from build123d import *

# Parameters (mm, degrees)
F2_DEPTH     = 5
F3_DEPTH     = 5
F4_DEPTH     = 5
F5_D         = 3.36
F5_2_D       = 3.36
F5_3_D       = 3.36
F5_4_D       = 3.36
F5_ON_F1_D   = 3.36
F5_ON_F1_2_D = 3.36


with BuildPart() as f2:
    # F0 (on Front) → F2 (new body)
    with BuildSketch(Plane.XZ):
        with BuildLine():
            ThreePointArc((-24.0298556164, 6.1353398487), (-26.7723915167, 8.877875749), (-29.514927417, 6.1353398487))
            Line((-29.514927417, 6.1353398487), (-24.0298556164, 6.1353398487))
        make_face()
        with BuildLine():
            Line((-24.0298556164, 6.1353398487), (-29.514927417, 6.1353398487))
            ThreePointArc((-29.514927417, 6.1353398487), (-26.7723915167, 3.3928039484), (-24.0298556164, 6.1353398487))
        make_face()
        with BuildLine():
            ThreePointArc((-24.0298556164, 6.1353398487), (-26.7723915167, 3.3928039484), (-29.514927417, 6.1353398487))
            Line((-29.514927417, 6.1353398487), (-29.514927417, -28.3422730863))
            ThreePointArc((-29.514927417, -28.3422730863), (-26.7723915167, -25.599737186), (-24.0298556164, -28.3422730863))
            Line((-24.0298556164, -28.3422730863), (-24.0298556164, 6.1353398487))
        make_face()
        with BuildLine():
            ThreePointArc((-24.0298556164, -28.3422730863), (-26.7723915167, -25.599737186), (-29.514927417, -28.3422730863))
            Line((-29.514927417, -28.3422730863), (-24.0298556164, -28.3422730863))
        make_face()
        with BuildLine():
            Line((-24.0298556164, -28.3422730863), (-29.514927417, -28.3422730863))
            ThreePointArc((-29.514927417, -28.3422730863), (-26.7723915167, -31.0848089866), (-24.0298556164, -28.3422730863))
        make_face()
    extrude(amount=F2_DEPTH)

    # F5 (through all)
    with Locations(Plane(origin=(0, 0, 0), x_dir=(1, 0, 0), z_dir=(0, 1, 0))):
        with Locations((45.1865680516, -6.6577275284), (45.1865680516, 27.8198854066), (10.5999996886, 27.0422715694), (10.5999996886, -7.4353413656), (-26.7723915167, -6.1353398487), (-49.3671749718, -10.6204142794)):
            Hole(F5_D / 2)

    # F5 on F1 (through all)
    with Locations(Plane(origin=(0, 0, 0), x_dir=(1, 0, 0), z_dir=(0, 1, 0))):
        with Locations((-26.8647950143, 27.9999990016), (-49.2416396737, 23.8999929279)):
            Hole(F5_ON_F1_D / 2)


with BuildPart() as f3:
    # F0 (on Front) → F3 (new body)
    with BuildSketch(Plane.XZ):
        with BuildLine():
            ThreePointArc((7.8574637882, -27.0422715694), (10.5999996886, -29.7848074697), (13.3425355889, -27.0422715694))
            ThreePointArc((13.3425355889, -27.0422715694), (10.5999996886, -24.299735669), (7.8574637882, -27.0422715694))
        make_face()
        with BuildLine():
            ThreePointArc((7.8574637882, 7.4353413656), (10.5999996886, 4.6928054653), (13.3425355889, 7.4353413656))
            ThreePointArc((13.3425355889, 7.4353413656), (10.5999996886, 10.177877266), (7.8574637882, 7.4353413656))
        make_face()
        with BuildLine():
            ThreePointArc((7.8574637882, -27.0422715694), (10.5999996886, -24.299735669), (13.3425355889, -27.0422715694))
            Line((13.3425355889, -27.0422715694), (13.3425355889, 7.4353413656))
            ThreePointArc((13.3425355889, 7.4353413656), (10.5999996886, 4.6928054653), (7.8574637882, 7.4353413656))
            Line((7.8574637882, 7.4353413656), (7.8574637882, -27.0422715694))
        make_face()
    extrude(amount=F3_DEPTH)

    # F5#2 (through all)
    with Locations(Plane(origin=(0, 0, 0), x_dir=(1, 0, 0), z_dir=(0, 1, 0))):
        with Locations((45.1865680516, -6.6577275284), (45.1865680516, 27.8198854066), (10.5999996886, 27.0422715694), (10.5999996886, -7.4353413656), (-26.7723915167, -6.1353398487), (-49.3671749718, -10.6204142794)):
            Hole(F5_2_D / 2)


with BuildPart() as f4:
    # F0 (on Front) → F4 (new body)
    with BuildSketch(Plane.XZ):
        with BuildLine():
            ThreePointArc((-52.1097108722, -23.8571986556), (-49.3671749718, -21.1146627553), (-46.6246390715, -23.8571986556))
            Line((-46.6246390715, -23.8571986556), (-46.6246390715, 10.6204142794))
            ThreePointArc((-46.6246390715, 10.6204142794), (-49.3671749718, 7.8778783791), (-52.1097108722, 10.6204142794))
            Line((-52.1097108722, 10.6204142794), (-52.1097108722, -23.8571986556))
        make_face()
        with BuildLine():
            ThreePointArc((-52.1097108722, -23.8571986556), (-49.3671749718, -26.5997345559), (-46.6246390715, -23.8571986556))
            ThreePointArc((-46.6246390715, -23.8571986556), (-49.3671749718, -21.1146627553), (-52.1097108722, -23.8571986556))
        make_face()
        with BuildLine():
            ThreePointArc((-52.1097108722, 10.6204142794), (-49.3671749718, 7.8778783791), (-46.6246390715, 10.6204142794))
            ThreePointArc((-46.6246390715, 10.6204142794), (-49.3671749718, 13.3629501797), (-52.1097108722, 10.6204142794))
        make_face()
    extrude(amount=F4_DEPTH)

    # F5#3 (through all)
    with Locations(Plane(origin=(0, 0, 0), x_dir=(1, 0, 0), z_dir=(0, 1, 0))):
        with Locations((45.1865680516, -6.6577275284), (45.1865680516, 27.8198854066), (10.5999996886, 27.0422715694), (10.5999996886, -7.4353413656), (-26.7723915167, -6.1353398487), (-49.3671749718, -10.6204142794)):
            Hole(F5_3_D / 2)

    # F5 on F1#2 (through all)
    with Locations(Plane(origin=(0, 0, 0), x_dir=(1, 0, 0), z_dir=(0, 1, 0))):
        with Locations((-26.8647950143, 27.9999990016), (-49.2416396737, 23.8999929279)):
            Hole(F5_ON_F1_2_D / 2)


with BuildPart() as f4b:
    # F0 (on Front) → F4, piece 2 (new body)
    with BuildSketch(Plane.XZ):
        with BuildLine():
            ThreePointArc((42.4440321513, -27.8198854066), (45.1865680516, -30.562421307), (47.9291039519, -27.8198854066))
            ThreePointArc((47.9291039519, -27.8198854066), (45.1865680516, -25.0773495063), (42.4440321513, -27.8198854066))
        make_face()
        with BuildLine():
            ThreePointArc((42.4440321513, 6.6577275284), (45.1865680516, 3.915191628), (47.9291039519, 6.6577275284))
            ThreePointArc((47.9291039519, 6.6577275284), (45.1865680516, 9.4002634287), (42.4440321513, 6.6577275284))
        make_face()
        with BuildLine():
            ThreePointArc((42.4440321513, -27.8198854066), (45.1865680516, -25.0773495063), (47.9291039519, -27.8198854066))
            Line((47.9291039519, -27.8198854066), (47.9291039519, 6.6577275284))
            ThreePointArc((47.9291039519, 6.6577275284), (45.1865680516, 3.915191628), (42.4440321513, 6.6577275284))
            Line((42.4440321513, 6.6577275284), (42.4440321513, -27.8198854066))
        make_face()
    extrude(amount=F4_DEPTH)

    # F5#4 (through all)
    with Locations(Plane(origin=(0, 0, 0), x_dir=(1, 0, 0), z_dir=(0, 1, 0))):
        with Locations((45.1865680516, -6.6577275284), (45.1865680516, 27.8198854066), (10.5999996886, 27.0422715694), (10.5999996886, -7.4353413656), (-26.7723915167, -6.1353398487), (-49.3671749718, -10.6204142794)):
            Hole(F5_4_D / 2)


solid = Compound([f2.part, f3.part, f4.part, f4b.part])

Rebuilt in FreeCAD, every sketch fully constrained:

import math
import FreeCAD as App
import Part
import Sketcher
Q = App.Units.Quantity

doc = App.newDocument("Part")
params = doc.addObject("Spreadsheet::Sheet", "Params")
for row, (alias, value) in enumerate([
    ("pad1_length", "5 mm"),
    ("sketch2_diameter", "3.36 mm"),
    ("hole_diameter", "3.36 mm"),
    ("sketch3_diameter", "3.36 mm"),
    ("hole2_diameter", "3.36 mm"),
    ("pad2_length", "5 mm"),
    ("sketch5_diameter", "3.36 mm"),
    ("hole3_diameter", "3.36 mm"),
    ("pad3_length", "5 mm"),
    ("sketch7_diameter", "3.36 mm"),
    ("hole4_diameter", "3.36 mm"),
    ("sketch8_diameter", "3.36 mm"),
    ("hole5_diameter", "3.36 mm"),
    ("pad4_length", "5 mm"),
    ("sketch10_diameter", "3.36 mm"),
    ("hole6_diameter", "3.36 mm"),
], start=1):
    params.set(f"A{row}", alias)
    params.set(f"B{row}", "=" + value)
    params.setAlias(f"B{row}", alias)

body = doc.addObject("PartDesign::Body", "Body")

# Sketch on XZ plane
sketch1 = body.newObject("Sketcher::SketchObject", "Sketch")
sketch1.AttachmentSupport = (doc.getObject("XZ_Plane"), [""])
sketch1.MapMode = "FlatFace"
sketch1.addGeometry([
    Part.ArcOfCircle(Part.Circle(App.Vector(-26.772392, 6.13534, 0), App.Vector(0, 0, 1), 2.742536), math.radians(0), math.radians(180)),
    Part.LineSegment(App.Vector(-29.514927, 6.13534, 0), App.Vector(-29.514927, -28.342273, 0)),
    Part.ArcOfCircle(Part.Circle(App.Vector(-26.772392, -28.342273, 0), App.Vector(0, 0, 1), 2.742536), math.radians(180), math.radians(360)),
    Part.LineSegment(App.Vector(-24.029856, -28.342273, 0), App.Vector(-24.029856, 6.13534, 0)),
], False)
sketch1.addConstraint([
    Sketcher.Constraint("Tangent", 0, 2, 1, 1),
    Sketcher.Constraint("Tangent", 1, 2, 2, 1),
    Sketcher.Constraint("Tangent", 2, 2, 3, 1),
    Sketcher.Constraint("Tangent", 3, 2, 0, 1),
    Sketcher.Constraint("Vertical", 1),
    Sketcher.Constraint("Vertical", 3),
    Sketcher.Constraint("Radius", 0, Q("2.742536 mm")),
    Sketcher.Constraint("DistanceY", 1, 2, 1, 1, Q("34.477613 mm")),
    Sketcher.Constraint("DistanceX", 0, 3, -1, 1, Q("26.772392 mm")),
    Sketcher.Constraint("DistanceY", -1, 1, 0, 3, Q("6.13534 mm")),
])
pad1 = body.newObject("PartDesign::Pad", "Pad")
pad1.Profile = sketch1
pad1.setExpression("Length", "Params.pad1_length")

# Sketch on XZ plane
sketch2 = body.newObject("Sketcher::SketchObject", "Sketch001")
sketch2.AttachmentSupport = (doc.getObject("XZ_Plane"), [""])
sketch2.MapMode = "FlatFace"
sketch2.addGeometry([
    Part.Circle(App.Vector(45.186568, 6.657728, 0), App.Vector(0, 0, 1), 1.68),  # 0
    Part.Circle(App.Vector(45.186568, -27.819885, 0), App.Vector(0, 0, 1), 1.68),  # 1
    Part.Circle(App.Vector(10.6, -27.042272, 0), App.Vector(0, 0, 1), 1.68),  # 2
    Part.Circle(App.Vector(10.6, 7.435341, 0), App.Vector(0, 0, 1), 1.68),  # 3
    Part.Circle(App.Vector(-26.772392, 6.13534, 0), App.Vector(0, 0, 1), 1.68),  # 4
    Part.Circle(App.Vector(-49.367175, 10.620414, 0), App.Vector(0, 0, 1), 1.68),  # 5
], False)
sketch2.addConstraint([
    Sketcher.Constraint("Equal", 0, 1),
    Sketcher.Constraint("Equal", 1, 2),
    Sketcher.Constraint("Equal", 2, 3),
    Sketcher.Constraint("Equal", 3, 4),
    Sketcher.Constraint("Equal", 4, 5),
    Sketcher.Constraint("Vertical", 0, 3, 1, 3),
    Sketcher.Constraint("Vertical", 2, 3, 3, 3),
    Sketcher.Constraint("Diameter", 0, Q("3.36 mm")),
    Sketcher.Constraint("DistanceX", -1, 1, 2, 3, Q("10.6 mm")),
    Sketcher.Constraint("DistanceY", 2, 3, 0, 3, Q("33.699999 mm")),
    Sketcher.Constraint("DistanceY", 4, 3, 3, 3, Q("1.300002 mm")),
    Sketcher.Constraint("DistanceY", 1, 3, 5, 3, Q("38.4403 mm")),
    Sketcher.Constraint("DistanceX", -1, 1, 0, 3, Q("45.186568 mm")),
    Sketcher.Constraint("DistanceY", 2, 3, -1, 1, Q("27.042272 mm")),
    Sketcher.Constraint("DistanceY", -1, 1, 3, 3, Q("7.435341 mm")),
    Sketcher.Constraint("DistanceX", 4, 3, -1, 1, Q("26.772392 mm")),
    Sketcher.Constraint("DistanceY", 1, 3, -1, 1, Q("27.819885 mm")),
    Sketcher.Constraint("DistanceX", 5, 3, -1, 1, Q("49.367175 mm")),
])
sketch2.setExpression("Constraints[7]", "Params.sketch2_diameter")
doc.recompute()
hole = body.newObject("PartDesign::Hole", "Hole")
hole.Profile = sketch2
hole.ThreadType = "None"
hole.setExpression("Diameter", "Params.hole_diameter")
hole.DepthType = "ThroughAll"
hole.Reversed = True

# Sketch on XZ plane
sketch3 = body.newObject("Sketcher::SketchObject", "Sketch002")
sketch3.AttachmentSupport = (doc.getObject("XZ_Plane"), [""])
sketch3.MapMode = "FlatFace"
sketch3.addGeometry([
    Part.Circle(App.Vector(-26.864795, -27.999999, 0), App.Vector(0, 0, 1), 1.68),
    Part.Circle(App.Vector(-49.24164, -23.899993, 0), App.Vector(0, 0, 1), 1.68),
], False)
sketch3.addConstraint([
    Sketcher.Constraint("Equal", 0, 1),
    Sketcher.Constraint("Diameter", 0, Q("3.36 mm")),
    Sketcher.Constraint("DistanceY", 0, 3, -1, 1, Q("27.999999 mm")),
    Sketcher.Constraint("DistanceX", 1, 3, -1, 1, Q("49.24164 mm")),
    Sketcher.Constraint("DistanceX", 0, 3, -1, 1, Q("26.864795 mm")),
    Sketcher.Constraint("DistanceY", 1, 3, -1, 1, Q("23.899993 mm")),
])
sketch3.setExpression("Constraints[1]", "Params.sketch3_diameter")
doc.recompute()
hole2 = body.newObject("PartDesign::Hole", "Hole001")
hole2.Profile = sketch3
hole2.ThreadType = "None"
hole2.setExpression("Diameter", "Params.hole2_diameter")
hole2.DepthType = "ThroughAll"
hole2.Reversed = True
body2 = doc.addObject("PartDesign::Body", "Body001")

# Sketch on XZ plane
sketch4 = body2.newObject("Sketcher::SketchObject", "Sketch003")
sketch4.AttachmentSupport = (doc.getObject("XZ_Plane001"), [""])
sketch4.MapMode = "FlatFace"
sketch4.addGeometry([
    Part.ArcOfCircle(Part.Circle(App.Vector(10.6, -27.042272, 0), App.Vector(0, 0, 1), 2.742536), math.radians(180), math.radians(360)),
    Part.LineSegment(App.Vector(13.342536, -27.042272, 0), App.Vector(13.342536, 7.435341, 0)),
    Part.ArcOfCircle(Part.Circle(App.Vector(10.6, 7.435341, 0), App.Vector(0, 0, 1), 2.742536), math.radians(0), math.radians(180)),
    Part.LineSegment(App.Vector(7.857464, 7.435341, 0), App.Vector(7.857464, -27.042272, 0)),
], False)
sketch4.addConstraint([
    Sketcher.Constraint("Tangent", 0, 2, 1, 1),
    Sketcher.Constraint("Tangent", 1, 2, 2, 1),
    Sketcher.Constraint("Tangent", 2, 2, 3, 1),
    Sketcher.Constraint("Tangent", 3, 2, 0, 1),
    Sketcher.Constraint("Vertical", 1),
    Sketcher.Constraint("Vertical", 3),
    Sketcher.Constraint("DistanceX", -1, 1, 0, 3, Q("10.6 mm")),
    Sketcher.Constraint("Radius", 0, Q("2.742536 mm")),
    Sketcher.Constraint("DistanceY", 1, 1, 1, 2, Q("34.477613 mm")),
    Sketcher.Constraint("DistanceY", 0, 3, -1, 1, Q("27.042272 mm")),
])
pad2 = body2.newObject("PartDesign::Pad", "Pad001")
pad2.Profile = sketch4
pad2.setExpression("Length", "Params.pad2_length")

# Sketch on XZ plane
sketch5 = body2.newObject("Sketcher::SketchObject", "Sketch004")
sketch5.AttachmentSupport = (doc.getObject("XZ_Plane001"), [""])
sketch5.MapMode = "FlatFace"
sketch5.addGeometry([
    Part.Circle(App.Vector(45.186568, 6.657728, 0), App.Vector(0, 0, 1), 1.68),  # 0
    Part.Circle(App.Vector(45.186568, -27.819885, 0), App.Vector(0, 0, 1), 1.68),  # 1
    Part.Circle(App.Vector(10.6, -27.042272, 0), App.Vector(0, 0, 1), 1.68),  # 2
    Part.Circle(App.Vector(10.6, 7.435341, 0), App.Vector(0, 0, 1), 1.68),  # 3
    Part.Circle(App.Vector(-26.772392, 6.13534, 0), App.Vector(0, 0, 1), 1.68),  # 4
    Part.Circle(App.Vector(-49.367175, 10.620414, 0), App.Vector(0, 0, 1), 1.68),  # 5
], False)
sketch5.addConstraint([
    Sketcher.Constraint("Equal", 0, 1),
    Sketcher.Constraint("Equal", 1, 2),
    Sketcher.Constraint("Equal", 2, 3),
    Sketcher.Constraint("Equal", 3, 4),
    Sketcher.Constraint("Equal", 4, 5),
    Sketcher.Constraint("Vertical", 0, 3, 1, 3),
    Sketcher.Constraint("Vertical", 2, 3, 3, 3),
    Sketcher.Constraint("Diameter", 0, Q("3.36 mm")),
    Sketcher.Constraint("DistanceX", -1, 1, 2, 3, Q("10.6 mm")),
    Sketcher.Constraint("DistanceY", 2, 3, 0, 3, Q("33.699999 mm")),
    Sketcher.Constraint("DistanceY", 4, 3, 3, 3, Q("1.300002 mm")),
    Sketcher.Constraint("DistanceY", 1, 3, 5, 3, Q("38.4403 mm")),
    Sketcher.Constraint("DistanceX", -1, 1, 0, 3, Q("45.186568 mm")),
    Sketcher.Constraint("DistanceY", 2, 3, -1, 1, Q("27.042272 mm")),
    Sketcher.Constraint("DistanceY", -1, 1, 3, 3, Q("7.435341 mm")),
    Sketcher.Constraint("DistanceX", 4, 3, -1, 1, Q("26.772392 mm")),
    Sketcher.Constraint("DistanceY", 1, 3, -1, 1, Q("27.819885 mm")),
    Sketcher.Constraint("DistanceX", 5, 3, -1, 1, Q("49.367175 mm")),
])
sketch5.setExpression("Constraints[7]", "Params.sketch5_diameter")
doc.recompute()
hole3 = body2.newObject("PartDesign::Hole", "Hole002")
hole3.Profile = sketch5
hole3.ThreadType = "None"
hole3.setExpression("Diameter", "Params.hole3_diameter")
hole3.DepthType = "ThroughAll"
hole3.Reversed = True
body3 = doc.addObject("PartDesign::Body", "Body002")

# Sketch on XZ plane
sketch6 = body3.newObject("Sketcher::SketchObject", "Sketch005")
sketch6.AttachmentSupport = (doc.getObject("XZ_Plane002"), [""])
sketch6.MapMode = "FlatFace"
sketch6.addGeometry([
    Part.LineSegment(App.Vector(-46.624639, -23.857199, 0), App.Vector(-46.624639, 10.620414, 0)),
    Part.ArcOfCircle(Part.Circle(App.Vector(-49.367175, 10.620414, 0), App.Vector(0, 0, 1), 2.742536), math.radians(0), math.radians(180)),
    Part.LineSegment(App.Vector(-52.109711, 10.620414, 0), App.Vector(-52.109711, -23.857199, 0)),
    Part.ArcOfCircle(Part.Circle(App.Vector(-49.367175, -23.857199, 0), App.Vector(0, 0, 1), 2.742536), math.radians(180), math.radians(360)),
], False)
sketch6.addConstraint([
    Sketcher.Constraint("Tangent", 0, 2, 1, 1),
    Sketcher.Constraint("Tangent", 1, 2, 2, 1),
    Sketcher.Constraint("Tangent", 2, 2, 3, 1),
    Sketcher.Constraint("Tangent", 3, 2, 0, 1),
    Sketcher.Constraint("Vertical", 0),
    Sketcher.Constraint("Vertical", 2),
    Sketcher.Constraint("Radius", 1, Q("2.742536 mm")),
    Sketcher.Constraint("DistanceY", 3, 3, -1, 1, Q("23.857199 mm")),
    Sketcher.Constraint("DistanceY", 0, 1, 0, 2, Q("34.477613 mm")),
    Sketcher.Constraint("DistanceX", 0, 2, -1, 1, Q("46.624639 mm")),
])
pad3 = body3.newObject("PartDesign::Pad", "Pad002")
pad3.Profile = sketch6
pad3.setExpression("Length", "Params.pad3_length")

# Sketch on XZ plane
sketch7 = body3.newObject("Sketcher::SketchObject", "Sketch006")
sketch7.AttachmentSupport = (doc.getObject("XZ_Plane002"), [""])
sketch7.MapMode = "FlatFace"
sketch7.addGeometry([
    Part.Circle(App.Vector(45.186568, 6.657728, 0), App.Vector(0, 0, 1), 1.68),  # 0
    Part.Circle(App.Vector(45.186568, -27.819885, 0), App.Vector(0, 0, 1), 1.68),  # 1
    Part.Circle(App.Vector(10.6, -27.042272, 0), App.Vector(0, 0, 1), 1.68),  # 2
    Part.Circle(App.Vector(10.6, 7.435341, 0), App.Vector(0, 0, 1), 1.68),  # 3
    Part.Circle(App.Vector(-26.772392, 6.13534, 0), App.Vector(0, 0, 1), 1.68),  # 4
    Part.Circle(App.Vector(-49.367175, 10.620414, 0), App.Vector(0, 0, 1), 1.68),  # 5
], False)
sketch7.addConstraint([
    Sketcher.Constraint("Equal", 0, 1),
    Sketcher.Constraint("Equal", 1, 2),
    Sketcher.Constraint("Equal", 2, 3),
    Sketcher.Constraint("Equal", 3, 4),
    Sketcher.Constraint("Equal", 4, 5),
    Sketcher.Constraint("Vertical", 0, 3, 1, 3),
    Sketcher.Constraint("Vertical", 2, 3, 3, 3),
    Sketcher.Constraint("Diameter", 0, Q("3.36 mm")),
    Sketcher.Constraint("DistanceX", -1, 1, 2, 3, Q("10.6 mm")),
    Sketcher.Constraint("DistanceY", 2, 3, 0, 3, Q("33.699999 mm")),
    Sketcher.Constraint("DistanceY", 4, 3, 3, 3, Q("1.300002 mm")),
    Sketcher.Constraint("DistanceY", 1, 3, 5, 3, Q("38.4403 mm")),
    Sketcher.Constraint("DistanceX", -1, 1, 0, 3, Q("45.186568 mm")),
    Sketcher.Constraint("DistanceY", 2, 3, -1, 1, Q("27.042272 mm")),
    Sketcher.Constraint("DistanceY", -1, 1, 3, 3, Q("7.435341 mm")),
    Sketcher.Constraint("DistanceX", 4, 3, -1, 1, Q("26.772392 mm")),
    Sketcher.Constraint("DistanceY", 1, 3, -1, 1, Q("27.819885 mm")),
    Sketcher.Constraint("DistanceX", 5, 3, -1, 1, Q("49.367175 mm")),
])
sketch7.setExpression("Constraints[7]", "Params.sketch7_diameter")
doc.recompute()
hole4 = body3.newObject("PartDesign::Hole", "Hole003")
hole4.Profile = sketch7
hole4.ThreadType = "None"
hole4.setExpression("Diameter", "Params.hole4_diameter")
hole4.DepthType = "ThroughAll"
hole4.Reversed = True

# Sketch on XZ plane
sketch8 = body3.newObject("Sketcher::SketchObject", "Sketch007")
sketch8.AttachmentSupport = (doc.getObject("XZ_Plane002"), [""])
sketch8.MapMode = "FlatFace"
sketch8.addGeometry([
    Part.Circle(App.Vector(-26.864795, -27.999999, 0), App.Vector(0, 0, 1), 1.68),
    Part.Circle(App.Vector(-49.24164, -23.899993, 0), App.Vector(0, 0, 1), 1.68),
], False)
sketch8.addConstraint([
    Sketcher.Constraint("Equal", 0, 1),
    Sketcher.Constraint("Diameter", 0, Q("3.36 mm")),
    Sketcher.Constraint("DistanceY", 0, 3, -1, 1, Q("27.999999 mm")),
    Sketcher.Constraint("DistanceX", 1, 3, -1, 1, Q("49.24164 mm")),
    Sketcher.Constraint("DistanceX", 0, 3, -1, 1, Q("26.864795 mm")),
    Sketcher.Constraint("DistanceY", 1, 3, -1, 1, Q("23.899993 mm")),
])
sketch8.setExpression("Constraints[1]", "Params.sketch8_diameter")
doc.recompute()
hole5 = body3.newObject("PartDesign::Hole", "Hole004")
hole5.Profile = sketch8
hole5.ThreadType = "None"
hole5.setExpression("Diameter", "Params.hole5_diameter")
hole5.DepthType = "ThroughAll"
hole5.Reversed = True
body4 = doc.addObject("PartDesign::Body", "Body003")

# Sketch on XZ plane
sketch9 = body4.newObject("Sketcher::SketchObject", "Sketch008")
sketch9.AttachmentSupport = (doc.getObject("XZ_Plane003"), [""])
sketch9.MapMode = "FlatFace"
sketch9.addGeometry([
    Part.ArcOfCircle(Part.Circle(App.Vector(45.186568, -27.819885, 0), App.Vector(0, 0, 1), 2.742536), math.radians(180), math.radians(360)),
    Part.LineSegment(App.Vector(47.929104, -27.819885, 0), App.Vector(47.929104, 6.657728, 0)),
    Part.ArcOfCircle(Part.Circle(App.Vector(45.186568, 6.657728, 0), App.Vector(0, 0, 1), 2.742536), math.radians(0), math.radians(180)),
    Part.LineSegment(App.Vector(42.444032, 6.657728, 0), App.Vector(42.444032, -27.819885, 0)),
], False)
sketch9.addConstraint([
    Sketcher.Constraint("Tangent", 0, 2, 1, 1),
    Sketcher.Constraint("Tangent", 1, 2, 2, 1),
    Sketcher.Constraint("Tangent", 2, 2, 3, 1),
    Sketcher.Constraint("Tangent", 3, 2, 0, 1),
    Sketcher.Constraint("Vertical", 1),
    Sketcher.Constraint("Vertical", 3),
    Sketcher.Constraint("Radius", 0, Q("2.742536 mm")),
    Sketcher.Constraint("DistanceY", 1, 1, 1, 2, Q("34.477613 mm")),
    Sketcher.Constraint("DistanceX", -1, 1, 0, 3, Q("45.186568 mm")),
    Sketcher.Constraint("DistanceY", 0, 3, -1, 1, Q("27.819885 mm")),
])
pad4 = body4.newObject("PartDesign::Pad", "Pad003")
pad4.Profile = sketch9
pad4.setExpression("Length", "Params.pad4_length")

# Sketch on XZ plane
sketch10 = body4.newObject("Sketcher::SketchObject", "Sketch009")
sketch10.AttachmentSupport = (doc.getObject("XZ_Plane003"), [""])
sketch10.MapMode = "FlatFace"
sketch10.addGeometry([
    Part.Circle(App.Vector(45.186568, 6.657728, 0), App.Vector(0, 0, 1), 1.68),  # 0
    Part.Circle(App.Vector(45.186568, -27.819885, 0), App.Vector(0, 0, 1), 1.68),  # 1
    Part.Circle(App.Vector(10.6, -27.042272, 0), App.Vector(0, 0, 1), 1.68),  # 2
    Part.Circle(App.Vector(10.6, 7.435341, 0), App.Vector(0, 0, 1), 1.68),  # 3
    Part.Circle(App.Vector(-26.772392, 6.13534, 0), App.Vector(0, 0, 1), 1.68),  # 4
    Part.Circle(App.Vector(-49.367175, 10.620414, 0), App.Vector(0, 0, 1), 1.68),  # 5
], False)
sketch10.addConstraint([
    Sketcher.Constraint("Equal", 0, 1),
    Sketcher.Constraint("Equal", 1, 2),
    Sketcher.Constraint("Equal", 2, 3),
    Sketcher.Constraint("Equal", 3, 4),
    Sketcher.Constraint("Equal", 4, 5),
    Sketcher.Constraint("Vertical", 0, 3, 1, 3),
    Sketcher.Constraint("Vertical", 2, 3, 3, 3),
    Sketcher.Constraint("Diameter", 0, Q("3.36 mm")),
    Sketcher.Constraint("DistanceX", -1, 1, 2, 3, Q("10.6 mm")),
    Sketcher.Constraint("DistanceY", 2, 3, 0, 3, Q("33.699999 mm")),
    Sketcher.Constraint("DistanceY", 4, 3, 3, 3, Q("1.300002 mm")),
    Sketcher.Constraint("DistanceY", 1, 3, 5, 3, Q("38.4403 mm")),
    Sketcher.Constraint("DistanceX", -1, 1, 0, 3, Q("45.186568 mm")),
    Sketcher.Constraint("DistanceY", 2, 3, -1, 1, Q("27.042272 mm")),
    Sketcher.Constraint("DistanceY", -1, 1, 3, 3, Q("7.435341 mm")),
    Sketcher.Constraint("DistanceX", 4, 3, -1, 1, Q("26.772392 mm")),
    Sketcher.Constraint("DistanceY", 1, 3, -1, 1, Q("27.819885 mm")),
    Sketcher.Constraint("DistanceX", 5, 3, -1, 1, Q("49.367175 mm")),
])
sketch10.setExpression("Constraints[7]", "Params.sketch10_diameter")
doc.recompute()
hole6 = body4.newObject("PartDesign::Hole", "Hole005")
hole6.Profile = sketch10
hole6.ThreadType = "None"
hole6.setExpression("Diameter", "Params.hole6_diameter")
hole6.DepthType = "ThroughAll"
hole6.Reversed = True

doc.recompute()
